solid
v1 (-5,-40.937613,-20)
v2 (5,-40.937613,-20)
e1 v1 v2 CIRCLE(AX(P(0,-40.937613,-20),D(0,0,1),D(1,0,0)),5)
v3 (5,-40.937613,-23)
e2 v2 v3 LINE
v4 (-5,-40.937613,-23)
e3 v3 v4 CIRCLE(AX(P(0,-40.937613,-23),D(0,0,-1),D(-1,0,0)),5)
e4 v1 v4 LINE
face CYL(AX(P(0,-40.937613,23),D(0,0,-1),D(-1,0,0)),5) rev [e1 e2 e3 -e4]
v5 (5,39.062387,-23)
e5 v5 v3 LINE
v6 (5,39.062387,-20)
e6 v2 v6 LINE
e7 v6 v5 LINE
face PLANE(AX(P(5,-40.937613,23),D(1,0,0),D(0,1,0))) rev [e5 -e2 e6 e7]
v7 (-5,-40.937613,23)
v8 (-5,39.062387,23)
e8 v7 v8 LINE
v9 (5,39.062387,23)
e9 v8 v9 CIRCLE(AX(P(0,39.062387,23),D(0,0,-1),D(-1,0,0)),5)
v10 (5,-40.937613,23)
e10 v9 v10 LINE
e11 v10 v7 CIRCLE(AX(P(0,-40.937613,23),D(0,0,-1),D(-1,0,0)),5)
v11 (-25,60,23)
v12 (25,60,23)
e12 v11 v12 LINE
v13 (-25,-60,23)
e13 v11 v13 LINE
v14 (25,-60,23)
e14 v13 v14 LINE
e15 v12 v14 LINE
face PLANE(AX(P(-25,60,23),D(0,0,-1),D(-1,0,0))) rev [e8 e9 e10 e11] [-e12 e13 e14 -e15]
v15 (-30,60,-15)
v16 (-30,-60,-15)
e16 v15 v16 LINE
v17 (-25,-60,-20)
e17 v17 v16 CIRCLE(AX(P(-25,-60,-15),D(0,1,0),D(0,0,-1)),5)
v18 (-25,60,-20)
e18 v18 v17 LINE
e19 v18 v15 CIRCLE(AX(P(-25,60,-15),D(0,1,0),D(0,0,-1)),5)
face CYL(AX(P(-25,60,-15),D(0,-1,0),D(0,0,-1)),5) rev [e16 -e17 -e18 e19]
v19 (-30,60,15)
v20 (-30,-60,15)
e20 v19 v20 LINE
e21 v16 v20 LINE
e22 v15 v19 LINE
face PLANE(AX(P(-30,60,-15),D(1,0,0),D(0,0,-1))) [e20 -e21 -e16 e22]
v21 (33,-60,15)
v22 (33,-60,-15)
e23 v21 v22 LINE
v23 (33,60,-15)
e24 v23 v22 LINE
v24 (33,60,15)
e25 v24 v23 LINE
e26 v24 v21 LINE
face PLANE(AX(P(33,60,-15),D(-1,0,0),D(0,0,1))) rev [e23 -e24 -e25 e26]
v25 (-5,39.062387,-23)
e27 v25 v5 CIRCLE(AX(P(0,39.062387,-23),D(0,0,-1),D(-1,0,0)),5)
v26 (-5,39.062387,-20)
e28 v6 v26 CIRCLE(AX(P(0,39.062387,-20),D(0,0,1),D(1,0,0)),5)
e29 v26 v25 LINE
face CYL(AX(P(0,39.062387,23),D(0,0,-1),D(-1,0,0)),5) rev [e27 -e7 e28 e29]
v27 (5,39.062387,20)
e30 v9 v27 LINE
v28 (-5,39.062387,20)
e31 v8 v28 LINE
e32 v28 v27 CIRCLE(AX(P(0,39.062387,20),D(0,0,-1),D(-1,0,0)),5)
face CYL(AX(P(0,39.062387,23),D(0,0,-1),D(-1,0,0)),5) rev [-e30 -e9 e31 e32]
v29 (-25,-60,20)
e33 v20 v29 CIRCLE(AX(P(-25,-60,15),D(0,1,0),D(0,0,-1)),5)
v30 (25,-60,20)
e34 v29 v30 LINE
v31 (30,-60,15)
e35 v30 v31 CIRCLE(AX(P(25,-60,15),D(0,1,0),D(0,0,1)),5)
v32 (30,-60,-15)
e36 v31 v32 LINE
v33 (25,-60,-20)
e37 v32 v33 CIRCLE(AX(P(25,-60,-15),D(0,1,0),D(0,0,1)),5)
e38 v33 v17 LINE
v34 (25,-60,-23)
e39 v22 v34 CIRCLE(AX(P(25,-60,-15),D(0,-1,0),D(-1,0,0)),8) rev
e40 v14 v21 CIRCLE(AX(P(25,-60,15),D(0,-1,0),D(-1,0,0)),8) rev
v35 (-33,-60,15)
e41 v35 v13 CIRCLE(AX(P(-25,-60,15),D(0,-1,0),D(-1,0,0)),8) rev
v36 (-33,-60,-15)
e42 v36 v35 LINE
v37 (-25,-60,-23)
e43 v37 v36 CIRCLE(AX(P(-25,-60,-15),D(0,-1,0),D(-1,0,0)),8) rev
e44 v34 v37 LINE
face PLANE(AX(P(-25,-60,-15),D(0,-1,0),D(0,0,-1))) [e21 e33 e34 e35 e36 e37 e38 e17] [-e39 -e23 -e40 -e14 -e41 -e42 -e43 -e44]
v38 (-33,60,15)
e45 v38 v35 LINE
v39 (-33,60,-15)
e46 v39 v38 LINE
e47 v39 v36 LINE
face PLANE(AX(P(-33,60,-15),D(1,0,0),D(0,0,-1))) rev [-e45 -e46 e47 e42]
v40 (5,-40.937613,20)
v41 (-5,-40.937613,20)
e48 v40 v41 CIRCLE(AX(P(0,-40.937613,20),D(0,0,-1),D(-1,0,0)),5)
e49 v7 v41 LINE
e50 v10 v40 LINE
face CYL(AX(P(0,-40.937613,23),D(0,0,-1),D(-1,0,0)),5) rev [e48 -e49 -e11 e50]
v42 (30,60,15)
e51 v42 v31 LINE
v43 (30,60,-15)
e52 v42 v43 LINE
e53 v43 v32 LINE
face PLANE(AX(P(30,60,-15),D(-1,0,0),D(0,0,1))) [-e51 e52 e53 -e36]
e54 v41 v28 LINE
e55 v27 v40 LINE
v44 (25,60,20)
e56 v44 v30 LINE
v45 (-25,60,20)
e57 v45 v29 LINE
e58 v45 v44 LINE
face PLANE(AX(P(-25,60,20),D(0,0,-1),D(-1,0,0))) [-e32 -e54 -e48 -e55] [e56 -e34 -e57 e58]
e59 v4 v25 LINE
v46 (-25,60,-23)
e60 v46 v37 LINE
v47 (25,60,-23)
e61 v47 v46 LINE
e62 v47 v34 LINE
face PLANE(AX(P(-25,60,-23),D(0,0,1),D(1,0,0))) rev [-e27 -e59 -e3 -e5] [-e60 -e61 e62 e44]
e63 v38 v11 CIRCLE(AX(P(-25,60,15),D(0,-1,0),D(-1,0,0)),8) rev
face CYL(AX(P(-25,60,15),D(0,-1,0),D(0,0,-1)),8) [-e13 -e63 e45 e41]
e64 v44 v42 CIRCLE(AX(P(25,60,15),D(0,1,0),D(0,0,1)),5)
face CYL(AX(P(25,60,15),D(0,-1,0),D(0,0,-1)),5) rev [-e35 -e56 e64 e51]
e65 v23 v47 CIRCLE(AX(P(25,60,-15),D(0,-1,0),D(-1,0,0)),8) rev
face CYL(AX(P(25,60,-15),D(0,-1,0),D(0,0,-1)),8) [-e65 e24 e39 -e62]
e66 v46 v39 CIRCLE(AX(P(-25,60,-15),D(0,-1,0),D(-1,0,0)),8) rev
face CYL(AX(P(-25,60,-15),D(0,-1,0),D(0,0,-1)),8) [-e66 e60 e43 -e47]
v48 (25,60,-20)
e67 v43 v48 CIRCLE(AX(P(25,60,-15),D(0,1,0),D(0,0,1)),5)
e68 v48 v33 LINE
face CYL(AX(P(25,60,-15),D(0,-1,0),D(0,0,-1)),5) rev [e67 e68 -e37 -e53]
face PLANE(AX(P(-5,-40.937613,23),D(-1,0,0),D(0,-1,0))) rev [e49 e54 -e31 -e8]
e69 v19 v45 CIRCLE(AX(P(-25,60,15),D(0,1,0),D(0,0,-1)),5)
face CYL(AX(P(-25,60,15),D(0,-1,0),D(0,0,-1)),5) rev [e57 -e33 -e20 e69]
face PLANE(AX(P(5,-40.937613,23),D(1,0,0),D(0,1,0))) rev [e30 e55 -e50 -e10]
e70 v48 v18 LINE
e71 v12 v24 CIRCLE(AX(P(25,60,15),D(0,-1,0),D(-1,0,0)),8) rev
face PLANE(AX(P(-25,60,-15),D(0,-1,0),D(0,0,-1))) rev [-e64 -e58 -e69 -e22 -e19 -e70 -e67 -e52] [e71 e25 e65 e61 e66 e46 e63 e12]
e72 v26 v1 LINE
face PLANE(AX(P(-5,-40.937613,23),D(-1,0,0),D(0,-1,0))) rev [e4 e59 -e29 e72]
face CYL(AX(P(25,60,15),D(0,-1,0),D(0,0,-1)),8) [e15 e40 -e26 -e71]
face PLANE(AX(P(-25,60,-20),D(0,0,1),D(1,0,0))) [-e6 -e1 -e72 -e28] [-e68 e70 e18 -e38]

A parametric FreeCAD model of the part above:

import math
import FreeCAD as App
import Part
import Sketcher

V = App.Vector
Q = App.Units.Quantity

doc = App.newDocument("Part")
body = doc.addObject("PartDesign::Body", "Body")

# Sketch on XZ plane
sketch1 = body.newObject("Sketcher::SketchObject", "Sketch")
sketch1.AttachmentSupport = (doc.getObject("XZ_Plane"), [""])
sketch1.MapMode = "FlatFace"
sketch1.addGeometry([
    Part.LineSegment(V(-25, 23, 0), V(25, 23, 0)),  # 0
    Part.ArcOfCircle(Part.Circle(V(25, 15, 0), V(0, 0, 1), 8), math.radians(0), math.radians(90)),  # 1
    Part.LineSegment(V(33, 15, 0), V(33, -15, 0)),  # 2
    Part.ArcOfCircle(Part.Circle(V(25, -15, 0), V(0, 0, 1), 8), math.radians(-90), math.radians(0)),  # 3
    Part.LineSegment(V(25, -23, 0), V(-25, -23, 0)),  # 4
    Part.ArcOfCircle(Part.Circle(V(-25, -15, 0), V(0, 0, 1), 8), math.radians(-180), math.radians(-90)),  # 5
    Part.LineSegment(V(-33, -15, 0), V(-33, 15, 0)),  # 6
    Part.ArcOfCircle(Part.Circle(V(-25, 15, 0), V(0, 0, 1), 8), math.radians(90), math.radians(180)),  # 7
    Part.LineSegment(V(25, 20, 0), V(-25, 20, 0)),  # 8
    Part.ArcOfCircle(Part.Circle(V(-25, 15, 0), V(0, 0, 1), 5), math.radians(90), math.radians(180)),  # 9
    Part.LineSegment(V(-30, 15, 0), V(-30, -15, 0)),  # 10
    Part.ArcOfCircle(Part.Circle(V(-25, -15, 0), V(0, 0, 1), 5), math.radians(180), math.radians(270)),  # 11
    Part.LineSegment(V(-25, -20, 0), V(25, -20, 0)),  # 12
    Part.ArcOfCircle(Part.Circle(V(25, -15, 0), V(0, 0, 1), 5), math.radians(-90), math.radians(0)),  # 13
    Part.LineSegment(V(30, -15, 0), V(30, 15, 0)),  # 14
    Part.ArcOfCircle(Part.Circle(V(25, 15, 0), V(0, 0, 1), 5), math.radians(0), math.radians(90)),  # 15
], False)
sketch1.addConstraint([
    Sketcher.Constraint("Tangent", 0, 2, 1, 2),
    Sketcher.Constraint("Tangent", 1, 1, 2, 1),
    Sketcher.Constraint("Tangent", 2, 2, 3, 2),
    Sketcher.Constraint("Tangent", 3, 1, 4, 1),
    Sketcher.Constraint("Tangent", 4, 2, 5, 2),
    Sketcher.Constraint("Tangent", 5, 1, 6, 1),
    Sketcher.Constraint("Tangent", 6, 2, 7, 2),
    Sketcher.Constraint("Tangent", 7, 1, 0, 1),
    Sketcher.Constraint("Tangent", 8, 2, 9, 1),
    Sketcher.Constraint("Tangent", 9, 2, 10, 1),
    Sketcher.Constraint("Tangent", 10, 2, 11, 1),
    Sketcher.Constraint("Tangent", 11, 2, 12, 1),
    Sketcher.Constraint("Tangent", 12, 2, 13, 1),
    Sketcher.Constraint("Tangent", 13, 2, 14, 1),
    Sketcher.Constraint("Tangent", 14, 2, 15, 1),
    Sketcher.Constraint("Tangent", 15, 2, 8, 1),
    Sketcher.Constraint("Horizontal", 0),
    Sketcher.Constraint("Vertical", 2),
    Sketcher.Constraint("Horizontal", 4),
    Sketcher.Constraint("Vertical", 6),
    Sketcher.Constraint("Horizontal", 8),
    Sketcher.Constraint("Vertical", 10),
    Sketcher.Constraint("Horizontal", 12),
    Sketcher.Constraint("Vertical", 14),
    Sketcher.Constraint("Coincident", 9, 3, 7, 3),
    Sketcher.Constraint("Coincident", 11, 3, 5, 3),
    Sketcher.Constraint("Coincident", 13, 3, 3, 3),
    Sketcher.Constraint("Equal", 1, 3),
    Sketcher.Constraint("Equal", 3, 5),
    Sketcher.Constraint("Equal", 5, 7),
    Sketcher.Constraint("Equal", 13, 15),
    Sketcher.Constraint("Symmetric", 1, 3, 5, 3, -1, 1),
    Sketcher.Constraint("Radius", 1, Q("8 mm")),
    Sketcher.Constraint("Radius", 9, Q("5 mm")),
    Sketcher.Constraint("DistanceX", 0, 1, 0, 2, Q("50 mm")),
    Sketcher.Constraint("DistanceY", 2, 2, 2, 1, Q("30 mm")),
])
pad1 = body.newObject("PartDesign::Pad", "Pad")
pad1.Profile = sketch1
pad1.Length = 120
pad1.Midplane = True

# Sketch on XY plane
sketch2 = body.newObject("Sketcher::SketchObject", "Sketch001")
sketch2.AttachmentSupport = (doc.getObject("XY_Plane"), [""])
sketch2.MapMode = "FlatFace"
sketch2.AttachmentOffset = App.Placement(V(0, 0, -23), App.Rotation())
sketch2.addGeometry([
    Part.LineSegment(V(5, 39.062387, 0), V(5, -40.937613, 0)),
    Part.ArcOfCircle(Part.Circle(V(0, -40.937613, 0), V(0, 0, 1), 5), math.radians(180), math.radians(360)),
    Part.LineSegment(V(-5, -40.937613, 0), V(-5, 39.062387, 0)),
    Part.ArcOfCircle(Part.Circle(V(0, 39.062387, 0), V(0, 0, 1), 5), math.radians(0), math.radians(180)),
], False)
sketch2.addConstraint([
    Sketcher.Constraint("Tangent", 0, 2, 1, 2),
    Sketcher.Constraint("Tangent", 1, 1, 2, 1),
    Sketcher.Constraint("Tangent", 2, 2, 3, 2),
    Sketcher.Constraint("Tangent", 3, 1, 0, 1),
    Sketcher.Constraint("Vertical", 0),
    Sketcher.Constraint("Vertical", 2),
    Sketcher.Constraint("PointOnObject", 1, 3, -2),
    Sketcher.Constraint("Radius", 1, Q("5 mm")),
    Sketcher.Constraint("DistanceY", 0, 2, 0, 1, Q("80 mm")),
    Sketcher.Constraint("DistanceY", 1, 3, -1, 1, Q("40.937613 mm")),
])
pocket1 = body.newObject("PartDesign::Pocket", "Pocket")
pocket1.Profile = sketch2
pocket1.Type = "ThroughAll"
pocket1.Midplane = True

doc.recompute()
